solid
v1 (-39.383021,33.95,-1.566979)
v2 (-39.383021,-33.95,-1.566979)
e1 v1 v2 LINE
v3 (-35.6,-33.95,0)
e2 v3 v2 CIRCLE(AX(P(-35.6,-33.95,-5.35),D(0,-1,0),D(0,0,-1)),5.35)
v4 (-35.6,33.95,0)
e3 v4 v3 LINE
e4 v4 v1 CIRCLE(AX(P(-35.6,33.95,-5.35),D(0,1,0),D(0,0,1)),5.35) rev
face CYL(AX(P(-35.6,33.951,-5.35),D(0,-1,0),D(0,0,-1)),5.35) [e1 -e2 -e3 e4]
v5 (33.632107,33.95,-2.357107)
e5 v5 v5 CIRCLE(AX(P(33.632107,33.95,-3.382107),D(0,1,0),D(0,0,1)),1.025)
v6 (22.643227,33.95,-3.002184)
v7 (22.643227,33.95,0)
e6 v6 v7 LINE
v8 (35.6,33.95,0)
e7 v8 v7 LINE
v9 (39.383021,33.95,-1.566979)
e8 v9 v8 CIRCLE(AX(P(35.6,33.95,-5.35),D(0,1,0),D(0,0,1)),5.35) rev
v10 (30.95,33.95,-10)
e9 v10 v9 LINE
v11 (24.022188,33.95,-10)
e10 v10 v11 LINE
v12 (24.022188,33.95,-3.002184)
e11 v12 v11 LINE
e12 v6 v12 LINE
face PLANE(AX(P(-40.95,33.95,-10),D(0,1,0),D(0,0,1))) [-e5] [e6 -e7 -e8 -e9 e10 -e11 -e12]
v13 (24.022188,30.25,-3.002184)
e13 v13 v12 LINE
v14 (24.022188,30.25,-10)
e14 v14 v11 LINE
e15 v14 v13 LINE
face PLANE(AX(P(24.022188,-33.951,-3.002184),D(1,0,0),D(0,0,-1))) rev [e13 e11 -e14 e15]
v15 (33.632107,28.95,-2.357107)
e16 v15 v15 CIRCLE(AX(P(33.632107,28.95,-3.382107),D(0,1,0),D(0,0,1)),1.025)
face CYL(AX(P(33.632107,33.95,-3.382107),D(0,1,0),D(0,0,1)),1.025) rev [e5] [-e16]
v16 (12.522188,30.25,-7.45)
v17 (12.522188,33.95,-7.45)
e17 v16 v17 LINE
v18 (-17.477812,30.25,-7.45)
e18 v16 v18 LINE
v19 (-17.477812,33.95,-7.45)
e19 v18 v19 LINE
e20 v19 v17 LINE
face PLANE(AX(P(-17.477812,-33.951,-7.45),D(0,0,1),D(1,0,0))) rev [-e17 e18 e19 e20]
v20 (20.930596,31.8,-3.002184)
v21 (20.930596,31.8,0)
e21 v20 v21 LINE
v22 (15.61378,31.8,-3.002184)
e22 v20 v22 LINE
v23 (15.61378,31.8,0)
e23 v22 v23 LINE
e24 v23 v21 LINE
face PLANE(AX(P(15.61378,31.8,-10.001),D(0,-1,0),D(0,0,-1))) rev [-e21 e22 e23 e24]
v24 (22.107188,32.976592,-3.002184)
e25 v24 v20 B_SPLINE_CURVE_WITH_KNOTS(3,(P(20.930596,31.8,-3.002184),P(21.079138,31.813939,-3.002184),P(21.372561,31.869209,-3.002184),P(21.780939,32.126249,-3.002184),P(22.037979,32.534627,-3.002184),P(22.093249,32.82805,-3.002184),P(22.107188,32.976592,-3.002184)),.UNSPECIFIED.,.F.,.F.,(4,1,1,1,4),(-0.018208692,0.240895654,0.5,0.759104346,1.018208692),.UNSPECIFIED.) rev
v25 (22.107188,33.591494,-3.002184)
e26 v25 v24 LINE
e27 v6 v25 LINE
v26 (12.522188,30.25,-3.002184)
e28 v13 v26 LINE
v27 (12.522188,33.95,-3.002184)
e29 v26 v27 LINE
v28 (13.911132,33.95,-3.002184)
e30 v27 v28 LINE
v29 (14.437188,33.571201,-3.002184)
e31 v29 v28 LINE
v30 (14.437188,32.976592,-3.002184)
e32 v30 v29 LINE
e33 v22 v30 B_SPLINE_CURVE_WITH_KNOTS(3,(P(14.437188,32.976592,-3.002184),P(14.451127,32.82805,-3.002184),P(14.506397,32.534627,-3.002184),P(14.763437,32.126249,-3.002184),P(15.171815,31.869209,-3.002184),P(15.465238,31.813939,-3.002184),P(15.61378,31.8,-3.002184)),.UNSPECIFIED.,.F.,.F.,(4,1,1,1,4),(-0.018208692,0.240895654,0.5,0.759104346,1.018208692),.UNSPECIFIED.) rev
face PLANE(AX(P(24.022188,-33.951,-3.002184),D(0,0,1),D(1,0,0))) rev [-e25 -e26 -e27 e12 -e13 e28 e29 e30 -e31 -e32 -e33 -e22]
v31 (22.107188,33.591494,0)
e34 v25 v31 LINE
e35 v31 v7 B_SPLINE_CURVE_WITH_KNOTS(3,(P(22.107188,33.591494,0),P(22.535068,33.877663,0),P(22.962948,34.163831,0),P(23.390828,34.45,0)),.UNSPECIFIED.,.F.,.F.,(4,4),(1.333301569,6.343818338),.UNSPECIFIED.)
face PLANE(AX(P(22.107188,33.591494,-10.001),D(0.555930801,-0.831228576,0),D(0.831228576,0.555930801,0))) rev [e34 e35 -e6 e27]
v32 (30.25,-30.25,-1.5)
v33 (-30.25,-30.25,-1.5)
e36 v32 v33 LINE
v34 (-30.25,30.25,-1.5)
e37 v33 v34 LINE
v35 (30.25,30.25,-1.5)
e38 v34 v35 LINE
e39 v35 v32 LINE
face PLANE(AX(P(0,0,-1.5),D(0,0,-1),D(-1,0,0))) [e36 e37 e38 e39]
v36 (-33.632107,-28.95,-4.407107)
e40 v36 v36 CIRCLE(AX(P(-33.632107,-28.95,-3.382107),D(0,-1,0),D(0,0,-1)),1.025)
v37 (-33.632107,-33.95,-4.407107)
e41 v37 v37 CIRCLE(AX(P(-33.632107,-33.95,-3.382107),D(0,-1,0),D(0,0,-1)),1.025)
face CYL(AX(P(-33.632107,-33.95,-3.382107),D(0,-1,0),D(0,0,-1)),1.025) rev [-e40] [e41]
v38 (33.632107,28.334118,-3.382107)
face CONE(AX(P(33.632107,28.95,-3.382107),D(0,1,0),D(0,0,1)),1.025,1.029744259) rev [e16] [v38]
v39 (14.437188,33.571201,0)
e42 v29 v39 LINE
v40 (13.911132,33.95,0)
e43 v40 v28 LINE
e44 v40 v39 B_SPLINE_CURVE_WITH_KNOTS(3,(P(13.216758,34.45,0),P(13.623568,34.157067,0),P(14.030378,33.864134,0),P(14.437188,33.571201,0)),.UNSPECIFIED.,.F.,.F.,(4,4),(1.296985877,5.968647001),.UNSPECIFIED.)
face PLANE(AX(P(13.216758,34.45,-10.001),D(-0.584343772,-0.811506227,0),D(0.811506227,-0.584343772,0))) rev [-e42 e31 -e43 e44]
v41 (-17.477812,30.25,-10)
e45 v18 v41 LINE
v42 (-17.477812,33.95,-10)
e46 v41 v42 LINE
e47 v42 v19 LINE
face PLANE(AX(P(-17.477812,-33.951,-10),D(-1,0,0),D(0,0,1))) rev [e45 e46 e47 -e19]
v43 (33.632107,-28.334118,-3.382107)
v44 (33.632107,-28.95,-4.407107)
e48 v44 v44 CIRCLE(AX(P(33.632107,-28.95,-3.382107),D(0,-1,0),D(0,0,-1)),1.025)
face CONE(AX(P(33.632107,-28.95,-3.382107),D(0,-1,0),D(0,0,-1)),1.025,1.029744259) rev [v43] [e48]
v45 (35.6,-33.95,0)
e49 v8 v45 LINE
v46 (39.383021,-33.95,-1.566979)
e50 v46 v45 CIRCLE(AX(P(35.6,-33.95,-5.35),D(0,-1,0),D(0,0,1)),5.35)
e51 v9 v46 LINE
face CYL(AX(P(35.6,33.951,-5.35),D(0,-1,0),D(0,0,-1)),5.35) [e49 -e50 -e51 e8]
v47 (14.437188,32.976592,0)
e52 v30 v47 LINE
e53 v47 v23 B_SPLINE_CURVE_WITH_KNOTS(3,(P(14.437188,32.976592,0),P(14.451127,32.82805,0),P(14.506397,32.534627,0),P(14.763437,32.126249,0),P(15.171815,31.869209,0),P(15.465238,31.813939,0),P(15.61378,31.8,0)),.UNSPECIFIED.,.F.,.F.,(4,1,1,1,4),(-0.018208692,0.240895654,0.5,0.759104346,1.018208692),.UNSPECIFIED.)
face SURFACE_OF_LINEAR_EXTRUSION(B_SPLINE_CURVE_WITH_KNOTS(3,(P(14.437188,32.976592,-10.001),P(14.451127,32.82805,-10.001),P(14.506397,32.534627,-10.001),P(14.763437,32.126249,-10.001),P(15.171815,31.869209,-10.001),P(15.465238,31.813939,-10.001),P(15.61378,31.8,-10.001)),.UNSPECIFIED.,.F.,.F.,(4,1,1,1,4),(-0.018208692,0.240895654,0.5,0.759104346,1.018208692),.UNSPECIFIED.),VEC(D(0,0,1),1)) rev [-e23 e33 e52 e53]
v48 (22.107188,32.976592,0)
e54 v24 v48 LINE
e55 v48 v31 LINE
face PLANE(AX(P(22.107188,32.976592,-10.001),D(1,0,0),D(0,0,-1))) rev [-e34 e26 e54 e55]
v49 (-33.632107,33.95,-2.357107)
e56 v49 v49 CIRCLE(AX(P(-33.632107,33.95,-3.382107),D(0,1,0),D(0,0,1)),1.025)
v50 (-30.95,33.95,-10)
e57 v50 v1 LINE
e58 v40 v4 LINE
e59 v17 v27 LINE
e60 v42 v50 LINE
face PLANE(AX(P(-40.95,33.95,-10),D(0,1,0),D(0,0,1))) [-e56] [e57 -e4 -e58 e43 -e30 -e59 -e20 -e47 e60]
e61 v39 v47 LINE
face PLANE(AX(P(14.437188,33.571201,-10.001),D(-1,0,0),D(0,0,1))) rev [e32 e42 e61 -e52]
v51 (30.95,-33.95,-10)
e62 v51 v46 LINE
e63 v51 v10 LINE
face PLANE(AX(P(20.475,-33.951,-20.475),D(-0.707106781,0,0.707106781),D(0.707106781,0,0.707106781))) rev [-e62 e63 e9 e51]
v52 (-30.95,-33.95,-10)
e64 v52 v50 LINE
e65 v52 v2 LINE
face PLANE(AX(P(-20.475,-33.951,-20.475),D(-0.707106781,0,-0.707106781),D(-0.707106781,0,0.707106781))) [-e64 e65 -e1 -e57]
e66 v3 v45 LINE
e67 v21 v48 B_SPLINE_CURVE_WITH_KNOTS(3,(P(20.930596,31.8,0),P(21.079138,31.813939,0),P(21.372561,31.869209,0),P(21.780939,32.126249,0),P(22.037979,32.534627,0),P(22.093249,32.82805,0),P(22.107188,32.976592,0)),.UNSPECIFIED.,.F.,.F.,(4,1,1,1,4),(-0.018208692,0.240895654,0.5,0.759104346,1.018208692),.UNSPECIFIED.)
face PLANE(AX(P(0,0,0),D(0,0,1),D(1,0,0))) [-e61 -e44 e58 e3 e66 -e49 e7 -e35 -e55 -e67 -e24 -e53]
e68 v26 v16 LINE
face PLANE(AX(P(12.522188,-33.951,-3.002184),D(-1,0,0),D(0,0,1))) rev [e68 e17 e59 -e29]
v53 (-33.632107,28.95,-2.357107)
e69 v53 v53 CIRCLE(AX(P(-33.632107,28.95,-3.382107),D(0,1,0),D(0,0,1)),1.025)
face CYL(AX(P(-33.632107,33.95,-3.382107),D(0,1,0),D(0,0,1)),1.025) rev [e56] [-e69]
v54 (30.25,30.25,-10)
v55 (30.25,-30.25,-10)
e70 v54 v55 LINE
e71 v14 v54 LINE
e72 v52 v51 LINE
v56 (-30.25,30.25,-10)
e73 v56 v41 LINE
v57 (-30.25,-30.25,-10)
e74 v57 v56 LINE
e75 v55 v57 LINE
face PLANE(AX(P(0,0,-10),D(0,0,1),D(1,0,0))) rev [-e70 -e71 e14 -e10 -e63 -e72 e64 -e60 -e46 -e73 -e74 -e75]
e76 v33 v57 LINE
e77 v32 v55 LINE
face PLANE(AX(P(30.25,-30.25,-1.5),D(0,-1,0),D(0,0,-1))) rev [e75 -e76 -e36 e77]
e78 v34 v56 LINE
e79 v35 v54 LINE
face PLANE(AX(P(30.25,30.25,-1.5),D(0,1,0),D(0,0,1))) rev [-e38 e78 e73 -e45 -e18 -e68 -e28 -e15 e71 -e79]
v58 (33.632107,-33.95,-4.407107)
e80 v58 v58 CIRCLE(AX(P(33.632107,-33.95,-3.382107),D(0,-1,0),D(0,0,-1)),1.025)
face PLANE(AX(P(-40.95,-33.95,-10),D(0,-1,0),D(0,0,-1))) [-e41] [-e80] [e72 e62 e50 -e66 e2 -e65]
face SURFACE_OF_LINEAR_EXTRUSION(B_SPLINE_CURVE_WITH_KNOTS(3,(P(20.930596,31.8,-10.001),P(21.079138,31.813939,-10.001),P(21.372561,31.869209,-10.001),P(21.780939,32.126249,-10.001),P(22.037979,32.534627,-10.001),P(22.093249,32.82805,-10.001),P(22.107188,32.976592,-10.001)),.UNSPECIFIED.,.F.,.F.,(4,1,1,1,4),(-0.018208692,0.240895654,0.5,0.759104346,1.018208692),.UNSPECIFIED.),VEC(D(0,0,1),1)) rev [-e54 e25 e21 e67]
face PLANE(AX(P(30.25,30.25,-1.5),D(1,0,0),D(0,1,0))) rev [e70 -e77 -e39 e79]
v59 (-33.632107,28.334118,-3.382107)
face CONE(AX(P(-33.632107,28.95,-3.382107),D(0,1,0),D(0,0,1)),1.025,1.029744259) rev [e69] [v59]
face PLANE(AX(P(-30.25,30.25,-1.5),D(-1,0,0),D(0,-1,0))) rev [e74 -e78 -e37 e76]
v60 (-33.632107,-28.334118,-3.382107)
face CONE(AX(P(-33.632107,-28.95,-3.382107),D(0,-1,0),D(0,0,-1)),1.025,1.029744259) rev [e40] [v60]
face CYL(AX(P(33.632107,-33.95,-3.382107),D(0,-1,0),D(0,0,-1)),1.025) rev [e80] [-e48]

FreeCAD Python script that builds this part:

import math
import FreeCAD as App
import Part
import Sketcher
from FreeCAD import Vector
Q = App.Units.Quantity


def add_polygon(sketch, points):
    """Adds a closed chain of lines whose ends are joined by coincident constraints."""
    first, n = sketch.GeometryCount, len(points)
    for a, b in zip(points, points[1:] + points[:1]):
        sketch.addGeometry(Part.LineSegment(App.Vector(*a, 0), App.Vector(*b, 0)), False)
    for i in range(n):
        sketch.addConstraint(Sketcher.Constraint("Coincident", first + i, 2, first + (i + 1) % n, 1))

doc = App.newDocument("Part")
params = doc.addObject("Spreadsheet::Sheet", "Params")
for row, (alias, value) in enumerate([
    ("sketch1_width", "81.9 mm"),
    ("sketch1_height", "67.9 mm"),
    ("pad1_length", "10 mm"),
    ("sketch2_width", "60.5 mm"),
    ("pocket1_length", "8.5 mm"),
    ("sketch3_radius", "5.35 mm"),
    ("sketch3_width", "5.35 mm"),
    ("sketch4_radius", "5.35 mm"),
    ("sketch4_width", "5.35 mm"),
    ("sketch5_width", "5 mm"),
    ("groove_angle", "360 deg"),
    ("linearpattern_pitch", "67.264214 mm"),
    ("sketch6_width", "5 mm"),
    ("groove2_angle", "360 deg"),
    ("sketch7_width", "10 mm"),
    ("sketch8_width", "10 mm"),
    ("sketch9_width", "30 mm"),
    ("sketch9_width2", "11.5 mm"),
    ("sketch9_height", "2.55 mm"),
], start=1):
    params.set(f"A{row}", alias)
    params.set(f"B{row}", "=" + value)
    params.setAlias(f"B{row}", alias)

body = doc.addObject("PartDesign::Body", "Body")

# Sketch on XY plane
sketch1 = body.newObject("Sketcher::SketchObject", "Sketch")
sketch1.AttachmentSupport = (doc.getObject("XY_Plane"), [""])
sketch1.MapMode = "FlatFace"
add_polygon(sketch1, [(-41, 34), (-41, -34), (41, -34), (41, 34)])  # lines 0-3
sketch1.addConstraint([
    Sketcher.Constraint("Vertical", 0),
    Sketcher.Constraint("Horizontal", 1),
    Sketcher.Constraint("Vertical", 2),
    Sketcher.Constraint("Horizontal", 3),
    Sketcher.Constraint("Symmetric", 0, 2, 2, 2, -1, 1),
    Sketcher.Constraint("DistanceX", 1, 1, 1, 2, 81.9),
    Sketcher.Constraint("DistanceY", 0, 2, 0, 1, 67.9),
])
sketch1.setExpression("Constraints[9]", "Params.sketch1_width")
sketch1.setExpression("Constraints[10]", "Params.sketch1_height")
pad1 = body.newObject("PartDesign::Pad", "Pad")
pad1.Profile = sketch1
pad1.setExpression("Length", "Params.pad1_length")
pad1.Reversed = True

# Sketch on XY plane
sketch2 = body.newObject("Sketcher::SketchObject", "Sketch001")
sketch2.AttachmentSupport = (doc.getObject("XY_Plane"), [""])
sketch2.MapMode = "FlatFace"
sketch2.AttachmentOffset = App.Placement(Vector(0, 0, -10), App.Rotation())
add_polygon(sketch2, [(30, 30), (30, -30), (-30, -30), (-30, 30)])  # lines 0-3
sketch2.addConstraint([
    Sketcher.Constraint("Vertical", 0),
    Sketcher.Constraint("Horizontal", 1),
    Sketcher.Constraint("Vertical", 2),
    Sketcher.Constraint("Horizontal", 3),
    Sketcher.Constraint("Symmetric", 0, 2, 2, 2, -1, 1),
    Sketcher.Constraint("Equal", 3, 0),
    Sketcher.Constraint("DistanceX", 1, 2, 1, 1, 60.5),
])
sketch2.setExpression("Constraints[10]", "Params.sketch2_width")
pocket1 = body.newObject("PartDesign::Pocket", "Pocket")
pocket1.Profile = sketch2
pocket1.setExpression("Length", "Params.pocket1_length")
pocket1.Reversed = True

# Sketch on XZ plane
sketch3 = body.newObject("Sketcher::SketchObject", "Sketch002")
sketch3.AttachmentSupport = (doc.getObject("XZ_Plane"), [""])
sketch3.MapMode = "FlatFace"
sketch3.AttachmentOffset = App.Placement(Vector(0, 0, 33.95), App.Rotation())
sketch3.addGeometry([
    Part.LineSegment(Vector(41, 0, 0), Vector(39.4, -1.6, 0)),
    Part.ArcOfCircle(Part.Circle(Vector(35.6, -5.3, 0), Vector(0, 0, 1), 5.3), math.radians(45), math.radians(90)),
    Part.LineSegment(Vector(35.6, 0, 0), Vector(41, 0, 0)),
], False)
sketch3.addConstraint([
    Sketcher.Constraint("Coincident", 0, 2, 1, 1),
    Sketcher.Constraint("Tangent", 1, 2, 2, 1),
    Sketcher.Constraint("Coincident", 2, 2, 0, 1),
    Sketcher.Constraint("Horizontal", 2),
    Sketcher.Constraint("PointOnObject", 1, 2, -1),
    Sketcher.Constraint("Angle", 0, Q("-135 deg")),
    Sketcher.Constraint("Radius", 1, 5.35),
    Sketcher.Constraint("DistanceX", 2, 1, 2, 2, 5.35),
    Sketcher.Constraint("DistanceX", -1, 1, 1, 3, 35.6),
])
sketch3.setExpression("Constraints[6]", "Params.sketch3_radius")
sketch3.setExpression("Constraints[7]", "Params.sketch3_width")
pocket2 = body.newObject("PartDesign::Pocket", "Pocket001")
pocket2.Profile = sketch3
pocket2.Type = "UpToFirst"

# Sketch on XZ plane
sketch4 = body.newObject("Sketcher::SketchObject", "Sketch003")
sketch4.AttachmentSupport = (doc.getObject("XZ_Plane"), [""])
sketch4.MapMode = "FlatFace"
sketch4.AttachmentOffset = App.Placement(Vector(0, 0, 33.95), App.Rotation())
sketch4.addGeometry([
    Part.LineSegment(Vector(-41, 0, 0), Vector(-35.6, 0, 0)),
    Part.ArcOfCircle(Part.Circle(Vector(-35.6, -5.3, 0), Vector(0, 0, 1), 5.3), math.radians(90), math.radians(135)),
    Part.LineSegment(Vector(-39.4, -1.6, 0), Vector(-41, 0, 0)),
], False)
sketch4.addConstraint([
    Sketcher.Constraint("Tangent", 0, 2, 1, 1),
    Sketcher.Constraint("Coincident", 1, 2, 2, 1),
    Sketcher.Constraint("Coincident", 2, 2, 0, 1),
    Sketcher.Constraint("Horizontal", 0),
    Sketcher.Constraint("PointOnObject", 0, 2, -1),
    Sketcher.Constraint("Angle", 2, Q("135 deg")),
    Sketcher.Constraint("Radius", 1, 5.35),
    Sketcher.Constraint("DistanceX", 0, 1, 0, 2, 5.35),
    Sketcher.Constraint("DistanceX", 1, 3, -1, 1, 35.6),
])
sketch4.setExpression("Constraints[6]", "Params.sketch4_radius")
sketch4.setExpression("Constraints[7]", "Params.sketch4_width")
pocket3 = body.newObject("PartDesign::Pocket", "Pocket002")
pocket3.Profile = sketch4
pocket3.Type = "UpToFirst"

# Sketch on YZ plane
sketch5 = body.newObject("Sketcher::SketchObject", "Sketch004")
sketch5.AttachmentSupport = (doc.getObject("YZ_Plane"), [""])
sketch5.MapMode = "FlatFace"
sketch5.AttachmentOffset = App.Placement(Vector(0, 0, 33.632107), App.Rotation())
add_polygon(sketch5, [(28.3, -3.4), (34, -3.4), (34, -2.4), (28.9, -2.4)])  # lines 0-3
sketch5.addGeometry(Part.LineSegment(Vector(34, -3.4, 0), Vector(28.3, -3.4, 0)), True)  # axis
sketch5.addConstraint([
    Sketcher.Constraint("Horizontal", 0),
    Sketcher.Constraint("Vertical", 1),
    Sketcher.Constraint("Horizontal", 2),
    Sketcher.Constraint("Horizontal", 4),
    Sketcher.Constraint("Coincident", 4, 1, 0, 2),
    Sketcher.Constraint("Equal", 0, 4),
    Sketcher.Constraint("DistanceX", 2, 2, 2, 1, 5.0),
    Sketcher.Constraint("Angle", 3, Q("-121 deg")),
    Sketcher.Constraint("DistanceY", 1, 1, 1, 2, 1.025),
    Sketcher.Constraint("DistanceX", -1, 1, 0, 2, 33.95),
    Sketcher.Constraint("DistanceY", 0, 2, -1, 1, 3.382107),
])
sketch5.setExpression("Constraints[10]", "Params.sketch5_width")
groove = body.newObject("PartDesign::Groove", "Groove")
groove.Profile = sketch5
groove.ReferenceAxis = (sketch5, ["Axis0"])
groove.setExpression("Angle", "Params.groove_angle")
doc.recompute()

linearpattern = body.newObject("PartDesign::LinearPattern", "LinearPattern")
linearpattern.Originals = [groove]
linearpattern.Direction = (doc.getObject("X_Axis"), [""])
linearpattern.Mode = "offset"
linearpattern.setExpression("Offset", "Params.linearpattern_pitch")
linearpattern.Occurrences = 2
linearpattern.Reversed = True
body.Tip = linearpattern
doc.recompute()

mirrored = body.newObject("PartDesign::Mirrored", "Mirrored")
mirrored.Originals = [groove]
mirrored.MirrorPlane = (doc.getObject("XZ_Plane"), [""])
body.Tip = mirrored

# Sketch on YZ plane
sketch6 = body.newObject("Sketcher::SketchObject", "Sketch005")
sketch6.AttachmentSupport = (doc.getObject("YZ_Plane"), [""])
sketch6.MapMode = "FlatFace"
sketch6.AttachmentOffset = App.Placement(Vector(0, 0, -33.632107), App.Rotation())
add_polygon(sketch6, [(-34, -3.4), (-28.3, -3.4), (-28.9, -2.4), (-34, -2.4)])  # lines 0-3
sketch6.addGeometry(Part.LineSegment(Vector(-28.3, -3.4, 0), Vector(-34, -3.4, 0)), True)  # axis
sketch6.addConstraint([
    Sketcher.Constraint("Horizontal", 0),
    Sketcher.Constraint("Horizontal", 2),
    Sketcher.Constraint("Vertical", 3),
    Sketcher.Constraint("Horizontal", 4),
    Sketcher.Constraint("Coincident", 4, 1, 0, 2),
    Sketcher.Constraint("Vertical", 2, 2, 4, 2),
    Sketcher.Constraint("DistanceX", 2, 2, 2, 1, 5.0),
    Sketcher.Constraint("Angle", 1, Q("121 deg")),
    Sketcher.Constraint("DistanceY", 3, 2, 3, 1, 1.025),
    Sketcher.Constraint("DistanceX", 1, 2, -1, 1, 28.95),
    Sketcher.Constraint("DistanceY", 0, 2, -1, 1, 3.382107),
])
sketch6.setExpression("Constraints[10]", "Params.sketch6_width")
groove2 = body.newObject("PartDesign::Groove", "Groove001")
groove2.Profile = sketch6
groove2.ReferenceAxis = (sketch6, ["Axis0"])
groove2.setExpression("Angle", "Params.groove2_angle")

# Sketch on XZ plane
sketch7 = body.newObject("Sketcher::SketchObject", "Sketch006")
sketch7.AttachmentSupport = (doc.getObject("XZ_Plane"), [""])
sketch7.MapMode = "FlatFace"
sketch7.AttachmentOffset = App.Placement(Vector(0, 0, -33.95), App.Rotation())
add_polygon(sketch7, [(31, -10), (41, 0), (41, -10)])  # lines 0-2
sketch7.addConstraint([
    Sketcher.Constraint("Vertical", 1),
    Sketcher.Constraint("Horizontal", 2),
    Sketcher.Constraint("PointOnObject", 0, 2, -1),
    Sketcher.Constraint("Equal", 2, 1),
    Sketcher.Constraint("DistanceX", 2, 2, 2, 1, 10.0),
    Sketcher.Constraint("DistanceX", -1, 1, 0, 2, 40.95),
])
sketch7.setExpression("Constraints[7]", "Params.sketch7_width")
pocket4 = body.newObject("PartDesign::Pocket", "Pocket003")
pocket4.Profile = sketch7
pocket4.Type = "UpToFirst"
pocket4.Reversed = True

# Sketch on XZ plane
sketch8 = body.newObject("Sketcher::SketchObject", "Sketch007")
sketch8.AttachmentSupport = (doc.getObject("XZ_Plane"), [""])
sketch8.MapMode = "FlatFace"
sketch8.AttachmentOffset = App.Placement(Vector(0, 0, -33.95), App.Rotation())
add_polygon(sketch8, [(-31, -10), (-41, -10), (-41, 0)])  # lines 0-2
sketch8.addConstraint([
    Sketcher.Constraint("Horizontal", 0),
    Sketcher.Constraint("Vertical", 1),
    Sketcher.Constraint("PointOnObject", 1, 2, -1),
    Sketcher.Constraint("Equal", 0, 1),
    Sketcher.Constraint("DistanceX", 0, 2, 0, 1, 10.0),
    Sketcher.Constraint("DistanceX", 0, 2, -1, 1, 40.95),
])
sketch8.setExpression("Constraints[7]", "Params.sketch8_width")
pocket5 = body.newObject("PartDesign::Pocket", "Pocket004")
pocket5.Profile = sketch8
pocket5.Type = "UpToFirst"
pocket5.Reversed = True

# Sketch on XZ plane
sketch9 = body.newObject("Sketcher::SketchObject", "Sketch008")
sketch9.AttachmentSupport = (doc.getObject("XZ_Plane"), [""])
sketch9.MapMode = "FlatFace"
sketch9.AttachmentOffset = App.Placement(Vector(0, 0, -33.95), App.Rotation())
add_polygon(sketch9, [(12.5, -3), (24, -3), (24, -10), (-17.5, -10), (-17.5, -7.5), (12.5, -7.5)])  # lines 0-5
sketch9.addConstraint([
    Sketcher.Constraint("Horizontal", 0),
    Sketcher.Constraint("Vertical", 1),
    Sketcher.Constraint("Horizontal", 2),
    Sketcher.Constraint("Vertical", 3),
    Sketcher.Constraint("Horizontal", 4),
    Sketcher.Constraint("Vertical", 5),
    Sketcher.Constraint("DistanceX", 4, 1, 4, 2, 30.0),
    Sketcher.Constraint("DistanceX", 0, 1, 0, 2, 11.5),
    Sketcher.Constraint("DistanceY", 1, 2, -1, 1, 10.0),
    Sketcher.Constraint("DistanceY", 3, 1, 3, 2, 2.55),
    Sketcher.Constraint("DistanceY", 1, 2, 1, 1, 6.997816),
    Sketcher.Constraint("DistanceX", -1, 1, 0, 2, 24.022188),
])
sketch9.setExpression("Constraints[12]", "Params.sketch9_width")
sketch9.setExpression("Constraints[13]", "Params.sketch9_width2")
sketch9.setExpression("Constraints[15]", "Params.sketch9_height")
pocket6 = body.newObject("PartDesign::Pocket", "Pocket005")
pocket6.Profile = sketch9
pocket6.Type = "UpToFirst"
pocket6.Reversed = True

# Sketch on XY plane
sketch10 = body.newObject("Sketcher::SketchObject", "Sketch009")
sketch10.AttachmentSupport = (doc.getObject("XY_Plane"), [""])
sketch10.MapMode = "FlatFace"
sketch10.addGeometry([
    Part.LineSegment(Vector(14.437188, 33.571201, 0), Vector(14.437188, 32.976592, 0)),  # 0
    Part.BSplineCurve([Vector(14.437188, 32.976592, 0), Vector(14.451127, 32.82805, 0), Vector(14.506397, 32.534627, 0), Vector(14.763437, 32.126249, 0), Vector(15.171815, 31.869209, 0), Vector(15.465238, 31.813939, 0), Vector(15.61378, 31.8, 0)], [4, 1, 1, 1, 4], [-0.018208692, 0.240895654, 0.5, 0.759104346, 1.018208692], False, 3, [1, 1, 1, 1, 1, 1, 1], False),  # 1
    Part.LineSegment(Vector(15.61378, 31.8, 0), Vector(20.930596, 31.8, 0)),  # 2
    Part.BSplineCurve([Vector(20.930596, 31.8, 0), Vector(21.079138, 31.813939, 0), Vector(21.372561, 31.869209, 0), Vector(21.780939, 32.126249, 0), Vector(22.037979, 32.534627, 0), Vector(22.093249, 32.82805, 0), Vector(22.107188, 32.976592, 0)], [4, 1, 1, 1, 4], [-0.018208692, 0.240895654, 0.5, 0.759104346, 1.018208692], False, 3, [1, 1, 1, 1, 1, 1, 1], False),  # 3
    Part.LineSegment(Vector(22.107188, 32.976592, 0), Vector(22.107188, 33.591494, 0)),  # 4
    Part.BSplineCurve([Vector(22.107188, 33.591494, 0), Vector(22.535068, 33.877663, 0), Vector(22.962948, 34.163831, 0), Vector(23.390828, 34.45, 0)], [4, 4], [1.333301569, 6.343818338], False, 3, [1, 1, 1, 1], False),  # 5
    Part.LineSegment(Vector(23.390828, 34.45, 0), Vector(13.216758, 34.45, 0)),  # 6
    Part.BSplineCurve([Vector(13.216758, 34.45, 0), Vector(13.623568, 34.157067, 0), Vector(14.030378, 33.864134, 0), Vector(14.437188, 33.571201, 0)], [4, 4], [1.296985877, 5.968647001], False, 3, [1, 1, 1, 1], False),  # 7
], False)
sketch10.addConstraint([
    Sketcher.Constraint("Block", 1),
    Sketcher.Constraint("Block", 3),
    Sketcher.Constraint("Block", 5),
    Sketcher.Constraint("Block", 7),
    Sketcher.Constraint("Coincident", 0, 2, 1, 1),
    Sketcher.Constraint("Coincident", 1, 2, 2, 1),
    Sketcher.Constraint("Coincident", 2, 2, 3, 1),
    Sketcher.Constraint("Coincident", 3, 2, 4, 1),
    Sketcher.Constraint("Coincident", 4, 2, 5, 1),
    Sketcher.Constraint("Coincident", 5, 2, 6, 1),
    Sketcher.Constraint("Coincident", 6, 2, 7, 1),
    Sketcher.Constraint("Coincident", 7, 2, 0, 1),
])
pocket7 = body.newObject("PartDesign::Pocket", "Pocket006")
pocket7.Profile = sketch10
pocket7.Type = "UpToFirst"

doc.recompute()
